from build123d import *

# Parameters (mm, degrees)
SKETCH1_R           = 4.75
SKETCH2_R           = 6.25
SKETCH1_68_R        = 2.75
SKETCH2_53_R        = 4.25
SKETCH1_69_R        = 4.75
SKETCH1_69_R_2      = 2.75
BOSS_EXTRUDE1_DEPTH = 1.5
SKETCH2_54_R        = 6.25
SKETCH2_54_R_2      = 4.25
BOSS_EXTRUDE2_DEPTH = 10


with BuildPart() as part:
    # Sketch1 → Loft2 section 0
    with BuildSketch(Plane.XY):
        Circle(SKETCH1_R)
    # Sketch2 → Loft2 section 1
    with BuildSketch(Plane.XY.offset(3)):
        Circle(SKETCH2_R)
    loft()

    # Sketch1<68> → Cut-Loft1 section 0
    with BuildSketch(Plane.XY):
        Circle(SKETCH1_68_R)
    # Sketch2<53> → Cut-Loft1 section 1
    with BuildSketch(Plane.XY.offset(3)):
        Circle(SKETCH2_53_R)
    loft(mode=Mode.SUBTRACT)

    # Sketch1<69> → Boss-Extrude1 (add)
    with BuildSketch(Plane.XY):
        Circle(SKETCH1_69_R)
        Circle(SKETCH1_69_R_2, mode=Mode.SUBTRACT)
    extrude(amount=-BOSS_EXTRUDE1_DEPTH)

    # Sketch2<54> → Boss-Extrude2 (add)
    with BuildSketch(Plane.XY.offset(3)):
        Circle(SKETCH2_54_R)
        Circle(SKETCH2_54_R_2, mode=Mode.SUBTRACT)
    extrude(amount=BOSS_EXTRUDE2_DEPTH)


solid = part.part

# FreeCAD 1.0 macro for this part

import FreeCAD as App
import Part
import Sketcher

V = App.Vector
Q = App.Units.Quantity

doc = App.newDocument("Part")
body = doc.addObject("PartDesign::Body", "Body")

# Sketch on XY plane
sketch1 = doc.addObject("Sketcher::SketchObject", "Sketch")
body.addObject(sketch1)
sketch1.AttachmentSupport = (doc.XY_Plane, [""])
sketch1.MapMode = "FlatFace"
sketch1.addGeometry(Part.Circle(V(0, 0, 0), V(0, 0, 1), 4.75), False)
sketch1.addConstraint(Sketcher.Constraint("Coincident", 0, 3, -1, 1))
sketch1.addConstraint(Sketcher.Constraint("Diameter", 0, Q("9.5 mm")))

# Sketch on XY plane
sketch2 = doc.addObject("Sketcher::SketchObject", "Sketch001")
body.addObject(sketch2)
sketch2.AttachmentSupport = (doc.XY_Plane, [""])
sketch2.MapMode = "FlatFace"
sketch2.AttachmentOffset = App.Placement(V(0, 0, 3), App.Rotation())
sketch2.addGeometry(Part.Circle(V(0, 0, 0), V(0, 0, 1), 6.25), False)
sketch2.addConstraint(Sketcher.Constraint("Coincident", 0, 3, -1, 1))
sketch2.addConstraint(Sketcher.Constraint("Diameter", 0, Q("12.5 mm")))

additiveloft = doc.addObject("PartDesign::AdditiveLoft", "AdditiveLoft")
body.addObject(additiveloft)
additiveloft.Profile = sketch1
additiveloft.Sections = [sketch2]

# Sketch on XY plane
sketch3 = doc.addObject("Sketcher::SketchObject", "Sketch002")
body.addObject(sketch3)
sketch3.AttachmentSupport = (doc.XY_Plane, [""])
sketch3.MapMode = "FlatFace"
sketch3.addGeometry(Part.Circle(V(0, 0, 0), V(0, 0, 1), 2.75), False)
sketch3.addConstraint(Sketcher.Constraint("Coincident", 0, 3, -1, 1))
sketch3.addConstraint(Sketcher.Constraint("Diameter", 0, Q("5.5 mm")))

# Sketch on XY plane
sketch4 = doc.addObject("Sketcher::SketchObject", "Sketch003")
body.addObject(sketch4)
sketch4.AttachmentSupport = (doc.XY_Plane, [""])
sketch4.MapMode = "FlatFace"
sketch4.AttachmentOffset = App.Placement(V(0, 0, 3), App.Rotation())
sketch4.addGeometry(Part.Circle(V(0, 0, 0), V(0, 0, 1), 4.25), False)
sketch4.addConstraint(Sketcher.Constraint("Coincident", 0, 3, -1, 1))
sketch4.addConstraint(Sketcher.Constraint("Diameter", 0, Q("8.5 mm")))

subtractiveloft = doc.addObject("PartDesign::SubtractiveLoft", "SubtractiveLoft")
body.addObject(subtractiveloft)
subtractiveloft.Profile = sketch3
subtractiveloft.Sections = [sketch4]

# Sketch on XY plane
sketch5 = doc.addObject("Sketcher::SketchObject", "Sketch004")
body.addObject(sketch5)
sketch5.AttachmentSupport = (doc.XY_Plane, [""])
sketch5.MapMode = "FlatFace"
sketch5.addGeometry(Part.Circle(V(0, 0, 0), V(0, 0, 1), 4.75), False)
sketch5.addGeometry(Part.Circle(V(0, 0, 0), V(0, 0, 1), 2.75), False)
sketch5.addConstraint(Sketcher.Constraint("Coincident", 0, 3, -1, 1))
sketch5.addConstraint(Sketcher.Constraint("Coincident", 1, 3, -1, 1))
sketch5.addConstraint(Sketcher.Constraint("Diameter", 0, Q("9.5 mm")))
sketch5.addConstraint(Sketcher.Constraint("Diameter", 1, Q("5.5 mm")))
pad1 = doc.addObject("PartDesign::Pad", "Pad")
body.addObject(pad1)
pad1.Profile = sketch5
pad1.Length = 1.5
pad1.Reversed = True

# Sketch on XY plane
sketch6 = doc.addObject("Sketcher::SketchObject", "Sketch005")
body.addObject(sketch6)
sketch6.AttachmentSupport = (doc.XY_Plane, [""])
sketch6.MapMode = "FlatFace"
sketch6.AttachmentOffset = App.Placement(V(0, 0, 3), App.Rotation())
sketch6.addGeometry(Part.Circle(V(0, 0, 0), V(0, 0, 1), 6.25), False)
sketch6.addGeometry(Part.Circle(V(0, 0, 0), V(0, 0, 1), 4.25), False)
sketch6.addConstraint(Sketcher.Constraint("Coincident", 0, 3, -1, 1))
sketch6.addConstraint(Sketcher.Constraint("Coincident", 1, 3, -1, 1))
sketch6.addConstraint(Sketcher.Constraint("Diameter", 0, Q("12.5 mm")))
sketch6.addConstraint(Sketcher.Constraint("Diameter", 1, Q("8.5 mm")))
pad2 = doc.addObject("PartDesign::Pad", "Pad001")
body.addObject(pad2)
pad2.Profile = sketch6
pad2.Length = 10

doc.recompute()
